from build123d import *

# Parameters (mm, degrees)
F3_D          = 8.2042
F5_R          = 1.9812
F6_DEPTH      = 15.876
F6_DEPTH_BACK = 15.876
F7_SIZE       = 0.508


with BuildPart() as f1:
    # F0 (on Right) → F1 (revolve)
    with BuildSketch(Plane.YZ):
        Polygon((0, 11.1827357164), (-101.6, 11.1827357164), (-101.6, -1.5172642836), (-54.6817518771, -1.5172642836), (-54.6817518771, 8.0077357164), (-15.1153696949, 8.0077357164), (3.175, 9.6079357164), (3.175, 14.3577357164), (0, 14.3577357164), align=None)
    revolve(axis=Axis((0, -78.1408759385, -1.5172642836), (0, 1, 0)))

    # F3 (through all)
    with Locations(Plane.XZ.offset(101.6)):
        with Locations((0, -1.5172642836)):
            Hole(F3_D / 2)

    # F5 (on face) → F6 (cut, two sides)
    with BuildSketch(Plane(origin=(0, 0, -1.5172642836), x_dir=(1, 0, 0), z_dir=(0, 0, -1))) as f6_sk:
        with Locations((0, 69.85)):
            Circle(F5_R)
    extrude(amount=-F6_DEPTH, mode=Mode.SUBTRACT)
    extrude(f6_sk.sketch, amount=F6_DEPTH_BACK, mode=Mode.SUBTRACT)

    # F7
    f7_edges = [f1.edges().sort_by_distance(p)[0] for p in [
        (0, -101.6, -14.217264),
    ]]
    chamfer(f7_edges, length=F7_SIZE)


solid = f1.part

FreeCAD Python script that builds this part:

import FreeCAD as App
import Part
import Sketcher

V = App.Vector
Q = App.Units.Quantity


def edges_at(feature, points):
    """Names of the edges that pass closest to the given points."""
    edges = feature.Shape.Edges
    near = lambda p: min(range(len(edges)), key=lambda i: edges[i].distToShape(Part.Vertex(*p))[0])
    return sorted({f"Edge{near(p) + 1}" for p in points})

doc = App.newDocument("Part")
params = doc.addObject("Spreadsheet::Sheet", "Params")
for row, (alias, value) in enumerate([
    ("sketch1_width", "4 in"),
    ("sketch1_height", "0.5 in"),
    ("sketch1_width2", "0.125 in"),
    ("sketch1_height2", "0.375 in"),
    ("sketch1_height3", "0.187 in"),
    ("revolution_angle", "360 deg"),
    ("sketch2_diameter", "0.323 in"),
    ("hole_diameter", "0.323 in"),
    ("sketch3_diameter", "0.156 in"),
    ("chamfer_size", "0.02 in"),
], start=1):
    params.set(f"A{row}", alias)
    params.set(f"B{row}", "=" + value)
    params.setAlias(f"B{row}", alias)

body = doc.addObject("PartDesign::Body", "Body")

sketch1 = body.newObject("Sketcher::SketchObject", "Sketch")
sketch1.AttachmentSupport = (doc.getObject("YZ_Plane"), [""])
sketch1.MapMode = "FlatFace"
sketch1.addGeometry([
    Part.LineSegment(V(0, 11.2, 0), V(-101.6, 11.2, 0)),
    Part.LineSegment(V(-101.6, 11.2, 0), V(-101.6, -1.5, 0)),
    Part.LineSegment(V(-101.6, -1.5, 0), V(-54.7, -1.5, 0)),
    Part.LineSegment(V(-54.7, -1.5, 0), V(-54.7, 8, 0)),
    Part.LineSegment(V(-54.7, 8, 0), V(-15.1, 8, 0)),
    Part.LineSegment(V(-15.1, 8, 0), V(3.2, 9.6, 0)),
    Part.LineSegment(V(3.2, 9.6, 0), V(3.2, 14.4, 0)),
    Part.LineSegment(V(3.2, 14.4, 0), V(0, 14.4, 0)),
    Part.LineSegment(V(0, 14.4, 0), V(0, 11.2, 0)),
], False)
sketch1.addGeometry(Part.LineSegment(V(-101.6, -1.5, 0), V(3.2, -1.5, 0)), True)
sketch1.addConstraint([
    Sketcher.Constraint("Coincident", 0, 2, 1, 1),
    Sketcher.Constraint("Coincident", 1, 2, 2, 1),
    Sketcher.Constraint("Coincident", 2, 2, 3, 1),
    Sketcher.Constraint("Coincident", 3, 2, 4, 1),
    Sketcher.Constraint("Coincident", 4, 2, 5, 1),
    Sketcher.Constraint("Coincident", 5, 2, 6, 1),
    Sketcher.Constraint("Coincident", 6, 2, 7, 1),
    Sketcher.Constraint("Coincident", 7, 2, 8, 1),
    Sketcher.Constraint("Coincident", 8, 2, 0, 1),
    Sketcher.Constraint("Horizontal", 0),
    Sketcher.Constraint("Vertical", 1),
    Sketcher.Constraint("Horizontal", 2),
    Sketcher.Constraint("Vertical", 3),
    Sketcher.Constraint("Horizontal", 4),
    Sketcher.Constraint("Vertical", 6),
    Sketcher.Constraint("Horizontal", 7),
    Sketcher.Constraint("Vertical", 8),
    Sketcher.Constraint("Horizontal", 9),
    Sketcher.Constraint("Coincident", 9, 1, 1, 2),
    Sketcher.Constraint("PointOnObject", 7, 2, -2),
    Sketcher.Constraint("Vertical", 6, 2, 9, 2),
    Sketcher.Constraint("Equal", 7, 8),
    Sketcher.Constraint("DistanceX", 0, 2, 0, 1, Q("4 in")),
    Sketcher.Constraint("DistanceY", 1, 2, 1, 1, Q("0.5 in")),
    Sketcher.Constraint("Angle", 5, Q("5 deg")),
    Sketcher.Constraint("DistanceX", 7, 2, 7, 1, Q("0.125 in")),
    Sketcher.Constraint("DistanceY", 3, 1, 3, 2, Q("0.375 in")),
    Sketcher.Constraint("DistanceY", 6, 1, 6, 2, Q("0.187 in")),
    Sketcher.Constraint("DistanceX", 2, 1, 2, 2, Q("46.918248 mm")),
    Sketcher.Constraint("DistanceY", -1, 1, 0, 2, Q("11.182736 mm")),
])
sketch1.setExpression("Constraints[22]", "Params.sketch1_width")
sketch1.setExpression("Constraints[23]", "Params.sketch1_height")
sketch1.setExpression("Constraints[25]", "Params.sketch1_width2")
sketch1.setExpression("Constraints[26]", "Params.sketch1_height2")
sketch1.setExpression("Constraints[27]", "Params.sketch1_height3")
revolution = body.newObject("PartDesign::Revolution", "Revolution")
revolution.Profile = sketch1
revolution.ReferenceAxis = (sketch1, ["Axis0"])
revolution.setExpression("Angle", "Params.revolution_angle")

sketch2 = body.newObject("Sketcher::SketchObject", "Sketch001")
sketch2.AttachmentSupport = (doc.getObject("XZ_Plane"), [""])
sketch2.MapMode = "FlatFace"
sketch2.AttachmentOffset = App.Placement(V(0, 0, 4 * 25.4), App.Rotation())
sketch2.addGeometry(Part.Circle(V(0, -1.5, 0), V(0, 0, 1), 4.1), False)
sketch2.addConstraint([
    Sketcher.Constraint("PointOnObject", 0, 3, -2),
    Sketcher.Constraint("Diameter", 0, Q("0.323 in")),
    Sketcher.Constraint("DistanceY", 0, 3, -1, 1, Q("1.517264 mm")),
])
sketch2.setExpression("Constraints[1]", "Params.sketch2_diameter")
doc.recompute()
hole = body.newObject("PartDesign::Hole", "Hole")
hole.Profile = sketch2
hole.ThreadType = "None"
hole.setExpression("Diameter", "Params.hole_diameter")
hole.DepthType = "ThroughAll"

sketch3 = body.newObject("Sketcher::SketchObject", "Sketch002")
sketch3.AttachmentSupport = (doc.getObject("XY_Plane"), [""])
sketch3.MapMode = "FlatFace"
sketch3.AttachmentOffset = App.Placement(V(0, 0, -1.517264), App.Rotation())
sketch3.addGeometry(Part.Circle(V(0, -69.8, 0), V(0, 0, 1), 2), False)
sketch3.addConstraint([
    Sketcher.Constraint("PointOnObject", 0, 3, -2),
    Sketcher.Constraint("Diameter", 0, Q("0.156 in")),
    Sketcher.Constraint("DistanceY", 0, 3, -1, 1, Q("2.75 in")),
])
sketch3.setExpression("Constraints[1]", "Params.sketch3_diameter")
pocket1 = body.newObject("PartDesign::Pocket", "Pocket")
pocket1.Profile = sketch3
pocket1.Type = "ThroughAll"
pocket1.Midplane = True
doc.recompute()

chamfer = body.newObject("PartDesign::Chamfer", "Chamfer")
chamfer.Base = (pocket1, edges_at(pocket1, [(0, -101.6, -14.217)]))
chamfer.setExpression("Size", "Params.chamfer_size")

doc.recompute()
